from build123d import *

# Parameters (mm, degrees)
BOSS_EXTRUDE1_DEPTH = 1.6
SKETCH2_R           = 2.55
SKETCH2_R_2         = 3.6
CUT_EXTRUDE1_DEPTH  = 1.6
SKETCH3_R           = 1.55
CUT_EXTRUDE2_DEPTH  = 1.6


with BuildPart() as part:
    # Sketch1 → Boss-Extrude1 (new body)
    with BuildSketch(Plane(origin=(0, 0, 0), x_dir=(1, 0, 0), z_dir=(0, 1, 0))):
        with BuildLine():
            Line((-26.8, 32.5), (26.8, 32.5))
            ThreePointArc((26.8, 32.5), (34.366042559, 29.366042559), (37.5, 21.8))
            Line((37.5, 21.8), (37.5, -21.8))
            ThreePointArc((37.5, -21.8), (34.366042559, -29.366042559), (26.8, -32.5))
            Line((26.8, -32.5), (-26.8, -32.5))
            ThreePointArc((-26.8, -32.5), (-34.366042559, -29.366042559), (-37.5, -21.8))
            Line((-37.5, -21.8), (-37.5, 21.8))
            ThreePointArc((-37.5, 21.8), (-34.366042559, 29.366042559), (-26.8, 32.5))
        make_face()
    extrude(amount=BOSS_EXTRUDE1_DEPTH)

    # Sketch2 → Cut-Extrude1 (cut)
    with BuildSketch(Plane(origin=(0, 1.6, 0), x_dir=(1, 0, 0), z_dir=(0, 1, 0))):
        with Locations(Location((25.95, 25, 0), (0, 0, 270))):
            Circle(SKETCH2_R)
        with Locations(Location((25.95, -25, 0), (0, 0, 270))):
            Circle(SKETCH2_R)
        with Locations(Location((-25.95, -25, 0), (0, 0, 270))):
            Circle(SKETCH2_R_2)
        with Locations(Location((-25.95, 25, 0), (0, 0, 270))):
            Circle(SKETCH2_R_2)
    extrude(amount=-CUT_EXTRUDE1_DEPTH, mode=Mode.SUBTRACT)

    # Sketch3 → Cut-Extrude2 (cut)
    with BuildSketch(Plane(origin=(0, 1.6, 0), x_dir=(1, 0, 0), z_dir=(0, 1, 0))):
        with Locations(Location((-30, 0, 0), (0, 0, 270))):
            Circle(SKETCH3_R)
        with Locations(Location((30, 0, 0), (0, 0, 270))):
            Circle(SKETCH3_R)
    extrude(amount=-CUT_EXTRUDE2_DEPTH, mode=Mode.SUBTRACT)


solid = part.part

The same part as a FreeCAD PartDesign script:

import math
import FreeCAD as App
import Part
import Sketcher

V = App.Vector
Q = App.Units.Quantity

doc = App.newDocument("Part")
body = doc.addObject("PartDesign::Body", "Body")

# Sketch on XZ plane
sketch1 = body.newObject("Sketcher::SketchObject", "Sketch")
sketch1.AttachmentSupport = (doc.getObject("XZ_Plane"), [""])
sketch1.MapMode = "FlatFace"
sketch1.addGeometry(Part.LineSegment(V(26.8, -32.5, 0), V(-26.8, -32.5, 0)), False)
sketch1.addGeometry(Part.ArcOfCircle(Part.Circle(V(-26.8, -21.8, 0), V(0, 0, 1), 10.7), math.radians(180), math.radians(270)), False)
sketch1.addGeometry(Part.LineSegment(V(-37.5, -21.8, 0), V(-37.5, 21.8, 0)), False)
sketch1.addGeometry(Part.ArcOfCircle(Part.Circle(V(-26.8, 21.8, 0), V(0, 0, 1), 10.7), math.radians(90), math.radians(180)), False)
sketch1.addGeometry(Part.LineSegment(V(-26.8, 32.5, 0), V(26.8, 32.5, 0)), False)
sketch1.addGeometry(Part.ArcOfCircle(Part.Circle(V(26.8, 21.8, 0), V(0, 0, 1), 10.7), math.radians(0), math.radians(90)), False)
sketch1.addGeometry(Part.LineSegment(V(37.5, 21.8, 0), V(37.5, -21.8, 0)), False)
sketch1.addGeometry(Part.ArcOfCircle(Part.Circle(V(26.8, -21.8, 0), V(0, 0, 1), 10.7), math.radians(-90), math.radians(0)), False)
sketch1.addConstraint(Sketcher.Constraint("Tangent", 0, 2, 1, 2))
sketch1.addConstraint(Sketcher.Constraint("Tangent", 1, 1, 2, 1))
sketch1.addConstraint(Sketcher.Constraint("Tangent", 2, 2, 3, 2))
sketch1.addConstraint(Sketcher.Constraint("Tangent", 3, 1, 4, 1))
sketch1.addConstraint(Sketcher.Constraint("Tangent", 4, 2, 5, 2))
sketch1.addConstraint(Sketcher.Constraint("Tangent", 5, 1, 6, 1))
sketch1.addConstraint(Sketcher.Constraint("Tangent", 6, 2, 7, 2))
sketch1.addConstraint(Sketcher.Constraint("Tangent", 7, 1, 0, 1))
sketch1.addConstraint(Sketcher.Constraint("Horizontal", 0))
sketch1.addConstraint(Sketcher.Constraint("Vertical", 2))
sketch1.addConstraint(Sketcher.Constraint("Horizontal", 4))
sketch1.addConstraint(Sketcher.Constraint("Vertical", 6))
sketch1.addConstraint(Sketcher.Constraint("Equal", 1, 3))
sketch1.addConstraint(Sketcher.Constraint("Equal", 3, 5))
sketch1.addConstraint(Sketcher.Constraint("Equal", 5, 7))
sketch1.addConstraint(Sketcher.Constraint("Symmetric", 1, 3, 5, 3, -1, 1))
sketch1.addConstraint(Sketcher.Constraint("Radius", 1, Q("10.7 mm")))
sketch1.addConstraint(Sketcher.Constraint("DistanceX", 0, 2, 0, 1, Q("53.6 mm")))
sketch1.addConstraint(Sketcher.Constraint("DistanceY", 2, 1, 2, 2, Q("43.6 mm")))
pad1 = body.newObject("PartDesign::Pad", "Pad")
pad1.Profile = sketch1
pad1.Length = 1.6
pad1.Reversed = True

# Sketch on XZ plane
sketch2 = body.newObject("Sketcher::SketchObject", "Sketch001")
sketch2.AttachmentSupport = (doc.getObject("XZ_Plane"), [""])
sketch2.MapMode = "FlatFace"
sketch2.AttachmentOffset = App.Placement(V(0, 0, -1.6), App.Rotation())
sketch2.addGeometry(Part.Circle(V(25.95, -25, 0), V(0, 0, 1), 2.55), False)
sketch2.addGeometry(Part.Circle(V(25.95, 25, 0), V(0, 0, 1), 2.55), False)
sketch2.addGeometry(Part.Circle(V(-25.95, 25, 0), V(0, 0, 1), 3.6), False)
sketch2.addGeometry(Part.Circle(V(-25.95, -25, 0), V(0, 0, 1), 3.6), False)
sketch2.addConstraint(Sketcher.Constraint("Equal", 0, 1))
sketch2.addConstraint(Sketcher.Constraint("Equal", 2, 3))
sketch2.addConstraint(Sketcher.Constraint("Symmetric", 0, 3, 2, 3, -1, 1))
sketch2.addConstraint(Sketcher.Constraint("Symmetric", 1, 3, 3, 3, -1, 1))
sketch2.addConstraint(Sketcher.Constraint("Symmetric", 1, 3, 2, 3, -2))
sketch2.addConstraint(Sketcher.Constraint("Diameter", 0, Q("5.1 mm")))
sketch2.addConstraint(Sketcher.Constraint("Diameter", 2, Q("7.2 mm")))
sketch2.addConstraint(Sketcher.Constraint("DistanceY", 0, 3, -1, 1, Q("25 mm")))
sketch2.addConstraint(Sketcher.Constraint("DistanceX", 2, 3, 1, 3, Q("51.9 mm")))
pocket1 = body.newObject("PartDesign::Pocket", "Pocket")
pocket1.Profile = sketch2
pocket1.Length = 1.6
pocket1.Reversed = True

# Sketch on XZ plane
sketch3 = body.newObject("Sketcher::SketchObject", "Sketch002")
sketch3.AttachmentSupport = (doc.getObject("XZ_Plane"), [""])
sketch3.MapMode = "FlatFace"
sketch3.AttachmentOffset = App.Placement(V(0, 0, -1.6), App.Rotation())
sketch3.addGeometry(Part.Circle(V(-30, 0, 0), V(0, 0, 1), 1.55), False)
sketch3.addGeometry(Part.Circle(V(30, 0, 0), V(0, 0, 1), 1.55), False)
sketch3.addConstraint(Sketcher.Constraint("Equal", 0, 1))
sketch3.addConstraint(Sketcher.Constraint("Symmetric", 0, 3, 1, 3, -1, 1))
sketch3.addConstraint(Sketcher.Constraint("PointOnObject", 0, 3, -1))
sketch3.addConstraint(Sketcher.Constraint("Diameter", 0, Q("3.1 mm")))
sketch3.addConstraint(Sketcher.Constraint("DistanceX", 0, 3, -1, 1, Q("30 mm")))
pocket2 = body.newObject("PartDesign::Pocket", "Pocket001")
pocket2.Profile = sketch3
pocket2.Length = 1.6
pocket2.Reversed = True

doc.recompute()
